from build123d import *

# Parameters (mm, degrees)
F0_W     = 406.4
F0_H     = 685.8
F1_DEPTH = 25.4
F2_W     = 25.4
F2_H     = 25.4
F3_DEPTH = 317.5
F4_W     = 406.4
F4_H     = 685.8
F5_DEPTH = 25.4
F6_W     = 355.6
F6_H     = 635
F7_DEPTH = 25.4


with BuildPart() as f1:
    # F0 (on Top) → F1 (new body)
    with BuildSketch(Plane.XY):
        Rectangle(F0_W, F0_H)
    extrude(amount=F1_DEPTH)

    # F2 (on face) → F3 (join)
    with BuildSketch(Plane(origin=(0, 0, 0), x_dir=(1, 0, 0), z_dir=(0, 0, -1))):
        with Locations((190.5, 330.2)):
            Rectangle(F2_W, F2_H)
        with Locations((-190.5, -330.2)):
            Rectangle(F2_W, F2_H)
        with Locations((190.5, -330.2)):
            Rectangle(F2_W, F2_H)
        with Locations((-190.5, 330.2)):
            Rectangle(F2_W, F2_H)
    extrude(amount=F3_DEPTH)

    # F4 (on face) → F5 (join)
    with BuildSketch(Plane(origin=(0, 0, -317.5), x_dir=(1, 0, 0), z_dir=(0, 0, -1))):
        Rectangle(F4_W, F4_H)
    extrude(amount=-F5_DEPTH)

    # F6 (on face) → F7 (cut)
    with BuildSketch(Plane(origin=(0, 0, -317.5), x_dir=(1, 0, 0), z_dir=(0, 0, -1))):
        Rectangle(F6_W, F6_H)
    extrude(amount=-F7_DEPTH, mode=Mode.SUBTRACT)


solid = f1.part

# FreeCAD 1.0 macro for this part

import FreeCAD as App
import Part
import Sketcher
Q = App.Units.Quantity


def add_polygon(sketch, points):
    """Adds a closed chain of lines whose ends are joined by coincident constraints."""
    first, n = sketch.GeometryCount, len(points)
    for a, b in zip(points, points[1:] + points[:1]):
        sketch.addGeometry(Part.LineSegment(App.Vector(*a, 0), App.Vector(*b, 0)), False)
    for i in range(n):
        sketch.addConstraint(Sketcher.Constraint("Coincident", first + i, 2, first + (i + 1) % n, 1))

doc = App.newDocument("Part")
params = doc.addObject("Spreadsheet::Sheet", "Params")
for row, (alias, value) in enumerate([
    ("sketch1_width", "16 in"),
    ("sketch1_height", "27 in"),
    ("pad1_length", "1 in"),
    ("sketch2_width", "1 in"),
    ("pad2_length", "12.5 in"),
    ("sketch3_width", "16 in"),
    ("sketch3_height", "27 in"),
    ("pad3_length", "1 in"),
    ("sketch4_width", "14 in"),
    ("sketch4_height", "25 in"),
    ("pocket1_length", "1 in"),
], start=1):
    params.set(f"A{row}", alias)
    params.set(f"B{row}", "=" + value)
    params.setAlias(f"B{row}", alias)

body = doc.addObject("PartDesign::Body", "Body")

sketch1 = body.newObject("Sketcher::SketchObject", "Sketch")
sketch1.AttachmentSupport = (doc.getObject("XY_Plane"), [""])
sketch1.MapMode = "FlatFace"
add_polygon(sketch1, [(-203, 343), (-203, -343), (203, -343), (203, 343)])
sketch1.addConstraint(Sketcher.Constraint("Vertical", 0))
sketch1.addConstraint(Sketcher.Constraint("Horizontal", 1))
sketch1.addConstraint(Sketcher.Constraint("Vertical", 2))
sketch1.addConstraint(Sketcher.Constraint("Horizontal", 3))
sketch1.addConstraint(Sketcher.Constraint("Symmetric", 0, 2, 2, 2, -1, 1))
sketch1.addConstraint(Sketcher.Constraint("DistanceX", 1, 1, 1, 2, Q("16 in")))
sketch1.addConstraint(Sketcher.Constraint("DistanceY", 0, 2, 0, 1, Q("27 in")))
sketch1.setExpression("Constraints[9]", "Params.sketch1_width")
sketch1.setExpression("Constraints[10]", "Params.sketch1_height")
pad1 = body.newObject("PartDesign::Pad", "Pad")
pad1.Profile = sketch1
pad1.setExpression("Length", "Params.pad1_length")

sketch2 = body.newObject("Sketcher::SketchObject", "Sketch001")
sketch2.AttachmentSupport = (doc.getObject("XY_Plane"), [""])
sketch2.MapMode = "FlatFace"
add_polygon(sketch2, [(178, -343), (178, -318), (203, -318), (203, -343)])
add_polygon(sketch2, [(-203, 318), (-203, 343), (-178, 343), (-178, 318)])
add_polygon(sketch2, [(178, 318), (178, 343), (203, 343), (203, 318)])
add_polygon(sketch2, [(-203, -343), (-203, -318), (-178, -318), (-178, -343)])
sketch2.addConstraint(Sketcher.Constraint("Vertical", 0))
sketch2.addConstraint(Sketcher.Constraint("Horizontal", 1))
sketch2.addConstraint(Sketcher.Constraint("Vertical", 2))
sketch2.addConstraint(Sketcher.Constraint("Horizontal", 3))
sketch2.addConstraint(Sketcher.Constraint("Vertical", 4))
sketch2.addConstraint(Sketcher.Constraint("Horizontal", 5))
sketch2.addConstraint(Sketcher.Constraint("Vertical", 6))
sketch2.addConstraint(Sketcher.Constraint("Horizontal", 7))
sketch2.addConstraint(Sketcher.Constraint("Vertical", 8))
sketch2.addConstraint(Sketcher.Constraint("Horizontal", 9))
sketch2.addConstraint(Sketcher.Constraint("Vertical", 10))
sketch2.addConstraint(Sketcher.Constraint("Horizontal", 11))
sketch2.addConstraint(Sketcher.Constraint("Vertical", 12))
sketch2.addConstraint(Sketcher.Constraint("Horizontal", 13))
sketch2.addConstraint(Sketcher.Constraint("Vertical", 14))
sketch2.addConstraint(Sketcher.Constraint("Horizontal", 15))
sketch2.addConstraint(Sketcher.Constraint("Symmetric", 2, 2, 4, 2, -1, 1))
sketch2.addConstraint(Sketcher.Constraint("Symmetric", 0, 2, 6, 2, -1, 1))
sketch2.addConstraint(Sketcher.Constraint("Symmetric", 10, 2, 12, 2, -1, 1))
sketch2.addConstraint(Sketcher.Constraint("Symmetric", 8, 2, 14, 2, -1, 1))
sketch2.addConstraint(Sketcher.Constraint("Symmetric", 5, 2, 8, 2, -2))
sketch2.addConstraint(Sketcher.Constraint("Symmetric", 7, 2, 10, 2, -2))
sketch2.addConstraint(Sketcher.Constraint("Equal", 15, 0))
sketch2.addConstraint(Sketcher.Constraint("DistanceX", 1, 1, 1, 2, Q("1 in")))
sketch2.addConstraint(Sketcher.Constraint("DistanceX", -1, 1, 0, 2, Q("7 in")))
sketch2.addConstraint(Sketcher.Constraint("DistanceY", 0, 2, 4, 2, Q("26 in")))
sketch2.setExpression("Constraints[39]", "Params.sketch2_width")
pad2 = body.newObject("PartDesign::Pad", "Pad001")
pad2.Profile = sketch2
pad2.setExpression("Length", "Params.pad2_length")
pad2.Reversed = True

sketch3 = body.newObject("Sketcher::SketchObject", "Sketch002")
sketch3.AttachmentSupport = (doc.getObject("XY_Plane"), [""])
sketch3.MapMode = "FlatFace"
sketch3.AttachmentOffset = App.Placement(App.Vector(0, 0, -12.5 * 25.4), App.Rotation())
add_polygon(sketch3, [(-203, -343), (-203, 343), (203, 343), (203, -343)])
sketch3.addConstraint(Sketcher.Constraint("Vertical", 0))
sketch3.addConstraint(Sketcher.Constraint("Horizontal", 1))
sketch3.addConstraint(Sketcher.Constraint("Vertical", 2))
sketch3.addConstraint(Sketcher.Constraint("Horizontal", 3))
sketch3.addConstraint(Sketcher.Constraint("Symmetric", 0, 2, 2, 2, -1, 1))
sketch3.addConstraint(Sketcher.Constraint("DistanceX", 1, 1, 1, 2, Q("16 in")))
sketch3.addConstraint(Sketcher.Constraint("DistanceY", 0, 1, 0, 2, Q("27 in")))
sketch3.setExpression("Constraints[9]", "Params.sketch3_width")
sketch3.setExpression("Constraints[10]", "Params.sketch3_height")
pad3 = body.newObject("PartDesign::Pad", "Pad002")
pad3.Profile = sketch3
pad3.setExpression("Length", "Params.pad3_length")

sketch4 = body.newObject("Sketcher::SketchObject", "Sketch003")
sketch4.AttachmentSupport = (doc.getObject("XY_Plane"), [""])
sketch4.MapMode = "FlatFace"
sketch4.AttachmentOffset = App.Placement(App.Vector(0, 0, -12.5 * 25.4), App.Rotation())
add_polygon(sketch4, [(-178, -318), (-178, 318), (178, 318), (178, -318)])
sketch4.addConstraint(Sketcher.Constraint("Vertical", 0))
sketch4.addConstraint(Sketcher.Constraint("Horizontal", 1))
sketch4.addConstraint(Sketcher.Constraint("Vertical", 2))
sketch4.addConstraint(Sketcher.Constraint("Horizontal", 3))
sketch4.addConstraint(Sketcher.Constraint("Symmetric", 0, 2, 2, 2, -1, 1))
sketch4.addConstraint(Sketcher.Constraint("DistanceX", 1, 1, 1, 2, Q("14 in")))
sketch4.addConstraint(Sketcher.Constraint("DistanceY", 0, 1, 0, 2, Q("25 in")))
sketch4.setExpression("Constraints[9]", "Params.sketch4_width")
sketch4.setExpression("Constraints[10]", "Params.sketch4_height")
pocket1 = body.newObject("PartDesign::Pocket", "Pocket")
pocket1.Profile = sketch4
pocket1.setExpression("Length", "Params.pocket1_length")
pocket1.Reversed = True

doc.recompute()
